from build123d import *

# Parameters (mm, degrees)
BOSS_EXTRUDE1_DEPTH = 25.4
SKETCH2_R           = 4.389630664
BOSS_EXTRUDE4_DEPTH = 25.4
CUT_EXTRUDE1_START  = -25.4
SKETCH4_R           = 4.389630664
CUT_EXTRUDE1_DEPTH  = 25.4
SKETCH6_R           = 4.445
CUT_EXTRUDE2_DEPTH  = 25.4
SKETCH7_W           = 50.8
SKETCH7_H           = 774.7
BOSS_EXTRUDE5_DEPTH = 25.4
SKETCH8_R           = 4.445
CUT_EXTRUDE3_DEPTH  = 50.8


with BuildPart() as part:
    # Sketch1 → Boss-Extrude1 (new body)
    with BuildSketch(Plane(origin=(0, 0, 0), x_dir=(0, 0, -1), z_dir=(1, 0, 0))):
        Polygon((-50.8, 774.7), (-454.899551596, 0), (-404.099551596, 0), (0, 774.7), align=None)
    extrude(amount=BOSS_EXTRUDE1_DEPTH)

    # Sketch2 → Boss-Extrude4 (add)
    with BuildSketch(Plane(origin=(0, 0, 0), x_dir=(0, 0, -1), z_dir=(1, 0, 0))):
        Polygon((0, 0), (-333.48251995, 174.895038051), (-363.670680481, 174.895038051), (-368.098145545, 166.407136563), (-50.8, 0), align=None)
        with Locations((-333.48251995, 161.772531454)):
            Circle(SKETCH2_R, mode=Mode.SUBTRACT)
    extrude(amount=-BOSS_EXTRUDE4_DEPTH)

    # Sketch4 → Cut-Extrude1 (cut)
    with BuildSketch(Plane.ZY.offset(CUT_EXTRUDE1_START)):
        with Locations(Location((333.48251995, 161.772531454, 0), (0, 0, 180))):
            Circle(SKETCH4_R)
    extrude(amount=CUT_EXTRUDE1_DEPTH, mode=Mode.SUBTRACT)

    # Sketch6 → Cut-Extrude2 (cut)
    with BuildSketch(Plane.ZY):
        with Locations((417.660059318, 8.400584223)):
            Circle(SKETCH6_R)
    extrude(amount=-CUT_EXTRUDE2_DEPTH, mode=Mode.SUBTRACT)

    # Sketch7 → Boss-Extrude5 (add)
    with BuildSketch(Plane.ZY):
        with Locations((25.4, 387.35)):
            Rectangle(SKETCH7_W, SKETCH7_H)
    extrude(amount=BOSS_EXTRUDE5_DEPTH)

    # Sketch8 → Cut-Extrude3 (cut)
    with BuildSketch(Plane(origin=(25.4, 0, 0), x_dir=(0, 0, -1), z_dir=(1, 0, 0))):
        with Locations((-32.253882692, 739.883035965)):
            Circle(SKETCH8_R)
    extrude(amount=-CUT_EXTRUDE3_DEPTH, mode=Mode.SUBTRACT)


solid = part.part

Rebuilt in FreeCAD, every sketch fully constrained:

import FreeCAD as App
import Part
import Sketcher
Q = App.Units.Quantity


def add_polygon(sketch, points):
    """Adds a closed chain of lines whose ends are joined by coincident constraints."""
    first, n = sketch.GeometryCount, len(points)
    for a, b in zip(points, points[1:] + points[:1]):
        sketch.addGeometry(Part.LineSegment(App.Vector(*a, 0), App.Vector(*b, 0)), False)
    for i in range(n):
        sketch.addConstraint(Sketcher.Constraint("Coincident", first + i, 2, first + (i + 1) % n, 1))

doc = App.newDocument("Part")
body = doc.addObject("PartDesign::Body", "Body")

# Sketch on YZ plane
sketch1 = body.newObject("Sketcher::SketchObject", "Sketch")
sketch1.AttachmentSupport = (doc.getObject("YZ_Plane"), [""])
sketch1.MapMode = "FlatFace"
add_polygon(sketch1, [(775, 51), (0, 455), (0, 404), (775, 0)])  # lines 0-3
sketch1.addConstraint(Sketcher.Constraint("Vertical", 1))
sketch1.addConstraint(Sketcher.Constraint("Vertical", 3))
sketch1.addConstraint(Sketcher.Constraint("PointOnObject", 0, 2, -2))
sketch1.addConstraint(Sketcher.Constraint("PointOnObject", 2, 2, -1))
sketch1.addConstraint(Sketcher.Constraint("Parallel", 0, 2))
sketch1.addConstraint(Sketcher.Constraint("DistanceY", 1, 2, 1, 1, Q("2 in")))
sketch1.addConstraint(Sketcher.Constraint("Distance", 0, Q("34.4 in")))
sketch1.addConstraint(Sketcher.Constraint("DistanceX", -1, 1, 2, 2, Q("30.5 in")))
pad1 = body.newObject("PartDesign::Pad", "Pad")
pad1.Profile = sketch1
pad1.Length = Q("1 in")

# Sketch on YZ plane
sketch2 = body.newObject("Sketcher::SketchObject", "Sketch001")
sketch2.AttachmentSupport = (doc.getObject("YZ_Plane"), [""])
sketch2.MapMode = "FlatFace"
add_polygon(sketch2, [(0, 0), (174.9, 333.5), (174.9, 363.7), (166.4, 368.1), (0, 50.8)])  # lines 0-4
sketch2.addGeometry(Part.Circle(App.Vector(161.8, 333.5, 0), App.Vector(0, 0, 1), 4.4), False)  # 5
sketch2.addConstraint(Sketcher.Constraint("Vertical", 1))
sketch2.addConstraint(Sketcher.Constraint("Vertical", 4))
sketch2.addConstraint(Sketcher.Constraint("Coincident", 4, 2, -1, 1))
sketch2.addConstraint(Sketcher.Constraint("Parallel", 0, 3))
sketch2.addConstraint(Sketcher.Constraint("Horizontal", 5, 3, 0, 2))
sketch2.addConstraint(Sketcher.Constraint("DistanceY", 4, 2, 4, 1, Q("2 in")))
sketch2.addConstraint(Sketcher.Constraint("Diameter", 5, Q("8.779261 mm")))
sketch2.addConstraint(Sketcher.Constraint("Distance", 0, Q("376.561901 mm")))
sketch2.addConstraint(Sketcher.Constraint("DistanceY", 1, 1, 1, 2, Q("30.188161 mm")))
sketch2.addConstraint(Sketcher.Constraint("DistanceX", 2, 2, 1, 2, Q("8.487901 mm")))
sketch2.addConstraint(Sketcher.Constraint("Distance", 2, Q("9.57324 mm")))
sketch2.addConstraint(Sketcher.Constraint("DistanceX", -1, 1, 5, 3, Q("161.772531 mm")))
pad2 = body.newObject("PartDesign::Pad", "Pad001")
pad2.Profile = sketch2
pad2.Length = Q("1 in")
pad2.Reversed = True

# Sketch on YZ plane
sketch3 = body.newObject("Sketcher::SketchObject", "Sketch002")
sketch3.AttachmentSupport = (doc.getObject("YZ_Plane"), [""])
sketch3.MapMode = "FlatFace"
sketch3.AttachmentOffset = App.Placement(App.Vector(0, 0, 1 * 25.4), App.Rotation())
sketch3.addGeometry(Part.Circle(App.Vector(161.8, 333.5, 0), App.Vector(0, 0, 1), 4.4), False)
sketch3.addConstraint(Sketcher.Constraint("Diameter", 0, Q("8.779261 mm")))
sketch3.addConstraint(Sketcher.Constraint("DistanceX", -1, 1, 0, 3, Q("161.772531 mm")))
sketch3.addConstraint(Sketcher.Constraint("DistanceY", -1, 1, 0, 3, Q("333.48252 mm")))
pocket1 = body.newObject("PartDesign::Pocket", "Pocket")
pocket1.Profile = sketch3
pocket1.Length = Q("1 in")

# Sketch on YZ plane
sketch4 = body.newObject("Sketcher::SketchObject", "Sketch003")
sketch4.AttachmentSupport = (doc.getObject("YZ_Plane"), [""])
sketch4.MapMode = "FlatFace"
sketch4.addGeometry(Part.Circle(App.Vector(8.4, 417.7, 0), App.Vector(0, 0, 1), 4.4), False)
sketch4.addConstraint(Sketcher.Constraint("Diameter", 0, Q("0.35 in")))
sketch4.addConstraint(Sketcher.Constraint("DistanceY", -1, 1, 0, 3, Q("417.660059 mm")))
sketch4.addConstraint(Sketcher.Constraint("DistanceX", -1, 1, 0, 3, Q("8.400584 mm")))
pocket2 = body.newObject("PartDesign::Pocket", "Pocket001")
pocket2.Profile = sketch4
pocket2.Length = Q("1 in")
pocket2.Reversed = True

# Sketch on YZ plane
sketch5 = body.newObject("Sketcher::SketchObject", "Sketch004")
sketch5.AttachmentSupport = (doc.getObject("YZ_Plane"), [""])
sketch5.MapMode = "FlatFace"
add_polygon(sketch5, [(775, 0), (0, 0), (0, 51), (775, 51)])  # lines 0-3
sketch5.addConstraint(Sketcher.Constraint("Horizontal", 0))
sketch5.addConstraint(Sketcher.Constraint("Vertical", 1))
sketch5.addConstraint(Sketcher.Constraint("Horizontal", 2))
sketch5.addConstraint(Sketcher.Constraint("Vertical", 3))
sketch5.addConstraint(Sketcher.Constraint("Coincident", 0, 2, -1, 1))
sketch5.addConstraint(Sketcher.Constraint("DistanceY", 1, 1, 1, 2, Q("2 in")))
sketch5.addConstraint(Sketcher.Constraint("DistanceX", 0, 2, 0, 1, Q("30.5 in")))
pad3 = body.newObject("PartDesign::Pad", "Pad002")
pad3.Profile = sketch5
pad3.Length = Q("1 in")
pad3.Reversed = True

# Sketch on YZ plane
sketch6 = body.newObject("Sketcher::SketchObject", "Sketch005")
sketch6.AttachmentSupport = (doc.getObject("YZ_Plane"), [""])
sketch6.MapMode = "FlatFace"
sketch6.AttachmentOffset = App.Placement(App.Vector(0, 0, 1 * 25.4), App.Rotation())
sketch6.addGeometry(Part.Circle(App.Vector(739.9, 32.3, 0), App.Vector(0, 0, 1), 4.4), False)
sketch6.addConstraint(Sketcher.Constraint("Diameter", 0, Q("0.35 in")))
sketch6.addConstraint(Sketcher.Constraint("DistanceX", -1, 1, 0, 3, Q("739.883036 mm")))
sketch6.addConstraint(Sketcher.Constraint("DistanceY", -1, 1, 0, 3, Q("32.253883 mm")))
pocket3 = body.newObject("PartDesign::Pocket", "Pocket002")
pocket3.Profile = sketch6
pocket3.Length = Q("2 in")

doc.recompute()
